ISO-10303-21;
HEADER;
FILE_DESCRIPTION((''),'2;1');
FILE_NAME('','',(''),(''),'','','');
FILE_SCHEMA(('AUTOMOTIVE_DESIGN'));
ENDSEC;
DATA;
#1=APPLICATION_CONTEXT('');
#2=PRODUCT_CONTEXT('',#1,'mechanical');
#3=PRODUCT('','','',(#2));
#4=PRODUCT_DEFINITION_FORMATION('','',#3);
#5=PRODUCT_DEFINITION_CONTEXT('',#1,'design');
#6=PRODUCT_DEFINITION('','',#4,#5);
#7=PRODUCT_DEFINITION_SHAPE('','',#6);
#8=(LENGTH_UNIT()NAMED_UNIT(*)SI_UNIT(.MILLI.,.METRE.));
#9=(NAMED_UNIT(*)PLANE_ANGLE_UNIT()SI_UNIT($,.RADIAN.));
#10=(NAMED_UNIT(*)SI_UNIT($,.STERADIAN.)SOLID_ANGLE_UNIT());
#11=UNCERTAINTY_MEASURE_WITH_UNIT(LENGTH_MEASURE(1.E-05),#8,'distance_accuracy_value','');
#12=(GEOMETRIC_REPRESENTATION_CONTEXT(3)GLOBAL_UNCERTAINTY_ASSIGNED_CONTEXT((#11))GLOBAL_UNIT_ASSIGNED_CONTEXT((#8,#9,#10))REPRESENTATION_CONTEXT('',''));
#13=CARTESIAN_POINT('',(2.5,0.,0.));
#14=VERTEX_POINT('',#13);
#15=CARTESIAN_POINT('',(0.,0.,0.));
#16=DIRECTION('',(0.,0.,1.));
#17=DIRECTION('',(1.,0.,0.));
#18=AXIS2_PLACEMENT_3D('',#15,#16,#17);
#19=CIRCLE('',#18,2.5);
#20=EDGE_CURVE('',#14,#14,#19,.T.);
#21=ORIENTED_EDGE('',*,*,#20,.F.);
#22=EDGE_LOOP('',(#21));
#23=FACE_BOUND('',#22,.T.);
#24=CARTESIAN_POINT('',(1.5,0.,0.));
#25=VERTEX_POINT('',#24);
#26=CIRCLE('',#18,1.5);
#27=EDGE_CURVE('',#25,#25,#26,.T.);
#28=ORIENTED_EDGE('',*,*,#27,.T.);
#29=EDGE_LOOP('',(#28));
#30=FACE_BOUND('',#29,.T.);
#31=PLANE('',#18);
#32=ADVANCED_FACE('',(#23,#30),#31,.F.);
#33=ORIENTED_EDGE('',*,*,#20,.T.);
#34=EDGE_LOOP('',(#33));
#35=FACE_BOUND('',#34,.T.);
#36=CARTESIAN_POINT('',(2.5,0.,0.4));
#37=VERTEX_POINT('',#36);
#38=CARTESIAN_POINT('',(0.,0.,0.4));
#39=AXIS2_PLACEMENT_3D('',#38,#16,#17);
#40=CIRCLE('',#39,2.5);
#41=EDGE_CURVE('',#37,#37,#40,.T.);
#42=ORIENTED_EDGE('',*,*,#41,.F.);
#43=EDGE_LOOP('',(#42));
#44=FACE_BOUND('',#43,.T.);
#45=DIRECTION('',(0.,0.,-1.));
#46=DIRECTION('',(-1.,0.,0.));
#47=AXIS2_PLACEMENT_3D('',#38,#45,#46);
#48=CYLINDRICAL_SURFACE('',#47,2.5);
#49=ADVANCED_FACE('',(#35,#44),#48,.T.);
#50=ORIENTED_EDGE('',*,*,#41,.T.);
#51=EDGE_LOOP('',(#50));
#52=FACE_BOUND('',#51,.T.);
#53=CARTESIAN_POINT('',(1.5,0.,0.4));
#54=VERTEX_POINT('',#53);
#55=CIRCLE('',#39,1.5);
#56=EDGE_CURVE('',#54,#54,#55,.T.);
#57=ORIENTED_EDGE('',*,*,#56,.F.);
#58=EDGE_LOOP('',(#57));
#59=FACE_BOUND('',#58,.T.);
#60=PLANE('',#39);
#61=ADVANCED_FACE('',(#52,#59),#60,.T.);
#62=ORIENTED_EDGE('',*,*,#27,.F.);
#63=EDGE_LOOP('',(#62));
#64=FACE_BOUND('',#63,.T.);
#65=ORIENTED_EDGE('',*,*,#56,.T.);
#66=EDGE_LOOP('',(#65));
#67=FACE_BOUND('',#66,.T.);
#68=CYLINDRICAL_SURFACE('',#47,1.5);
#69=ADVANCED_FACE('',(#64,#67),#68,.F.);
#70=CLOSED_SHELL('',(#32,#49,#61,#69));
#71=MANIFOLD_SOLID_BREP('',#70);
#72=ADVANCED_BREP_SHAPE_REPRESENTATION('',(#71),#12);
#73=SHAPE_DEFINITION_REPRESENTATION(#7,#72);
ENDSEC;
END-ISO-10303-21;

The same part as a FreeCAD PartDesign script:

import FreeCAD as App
import Part
import Sketcher

V = App.Vector
Q = App.Units.Quantity

doc = App.newDocument("Part")
params = doc.addObject("Spreadsheet::Sheet", "Params")
for row, (alias, value) in enumerate([
    ("sketch1_diameter", "5 mm"),
    ("sketch1_diameter2", "3 mm"),
    ("pad1_length", "0.4 mm"),
], start=1):
    params.set(f"A{row}", alias)
    params.set(f"B{row}", "=" + value)
    params.setAlias(f"B{row}", alias)

body = doc.addObject("PartDesign::Body", "Body")

# Sketch on XY plane
sketch1 = body.newObject("Sketcher::SketchObject", "Sketch")
sketch1.AttachmentSupport = (doc.getObject("XY_Plane"), [""])
sketch1.MapMode = "FlatFace"
sketch1.addGeometry([
    Part.Circle(V(0, 0, 0), V(0, 0, 1), 2.5),
    Part.Circle(V(0, 0, 0), V(0, 0, 1), 1.5),
], False)
sketch1.addConstraint([
    Sketcher.Constraint("Coincident", 0, 3, -1, 1),
    Sketcher.Constraint("Coincident", 1, 3, -1, 1),
    Sketcher.Constraint("Diameter", 0, Q("5 mm")),
    Sketcher.Constraint("Diameter", 1, Q("3 mm")),
])
sketch1.setExpression("Constraints[2]", "Params.sketch1_diameter")
sketch1.setExpression("Constraints[3]", "Params.sketch1_diameter2")
pad1 = body.newObject("PartDesign::Pad", "Pad")
pad1.Profile = sketch1
pad1.setExpression("Length", "Params.pad1_length")

doc.recompute()
